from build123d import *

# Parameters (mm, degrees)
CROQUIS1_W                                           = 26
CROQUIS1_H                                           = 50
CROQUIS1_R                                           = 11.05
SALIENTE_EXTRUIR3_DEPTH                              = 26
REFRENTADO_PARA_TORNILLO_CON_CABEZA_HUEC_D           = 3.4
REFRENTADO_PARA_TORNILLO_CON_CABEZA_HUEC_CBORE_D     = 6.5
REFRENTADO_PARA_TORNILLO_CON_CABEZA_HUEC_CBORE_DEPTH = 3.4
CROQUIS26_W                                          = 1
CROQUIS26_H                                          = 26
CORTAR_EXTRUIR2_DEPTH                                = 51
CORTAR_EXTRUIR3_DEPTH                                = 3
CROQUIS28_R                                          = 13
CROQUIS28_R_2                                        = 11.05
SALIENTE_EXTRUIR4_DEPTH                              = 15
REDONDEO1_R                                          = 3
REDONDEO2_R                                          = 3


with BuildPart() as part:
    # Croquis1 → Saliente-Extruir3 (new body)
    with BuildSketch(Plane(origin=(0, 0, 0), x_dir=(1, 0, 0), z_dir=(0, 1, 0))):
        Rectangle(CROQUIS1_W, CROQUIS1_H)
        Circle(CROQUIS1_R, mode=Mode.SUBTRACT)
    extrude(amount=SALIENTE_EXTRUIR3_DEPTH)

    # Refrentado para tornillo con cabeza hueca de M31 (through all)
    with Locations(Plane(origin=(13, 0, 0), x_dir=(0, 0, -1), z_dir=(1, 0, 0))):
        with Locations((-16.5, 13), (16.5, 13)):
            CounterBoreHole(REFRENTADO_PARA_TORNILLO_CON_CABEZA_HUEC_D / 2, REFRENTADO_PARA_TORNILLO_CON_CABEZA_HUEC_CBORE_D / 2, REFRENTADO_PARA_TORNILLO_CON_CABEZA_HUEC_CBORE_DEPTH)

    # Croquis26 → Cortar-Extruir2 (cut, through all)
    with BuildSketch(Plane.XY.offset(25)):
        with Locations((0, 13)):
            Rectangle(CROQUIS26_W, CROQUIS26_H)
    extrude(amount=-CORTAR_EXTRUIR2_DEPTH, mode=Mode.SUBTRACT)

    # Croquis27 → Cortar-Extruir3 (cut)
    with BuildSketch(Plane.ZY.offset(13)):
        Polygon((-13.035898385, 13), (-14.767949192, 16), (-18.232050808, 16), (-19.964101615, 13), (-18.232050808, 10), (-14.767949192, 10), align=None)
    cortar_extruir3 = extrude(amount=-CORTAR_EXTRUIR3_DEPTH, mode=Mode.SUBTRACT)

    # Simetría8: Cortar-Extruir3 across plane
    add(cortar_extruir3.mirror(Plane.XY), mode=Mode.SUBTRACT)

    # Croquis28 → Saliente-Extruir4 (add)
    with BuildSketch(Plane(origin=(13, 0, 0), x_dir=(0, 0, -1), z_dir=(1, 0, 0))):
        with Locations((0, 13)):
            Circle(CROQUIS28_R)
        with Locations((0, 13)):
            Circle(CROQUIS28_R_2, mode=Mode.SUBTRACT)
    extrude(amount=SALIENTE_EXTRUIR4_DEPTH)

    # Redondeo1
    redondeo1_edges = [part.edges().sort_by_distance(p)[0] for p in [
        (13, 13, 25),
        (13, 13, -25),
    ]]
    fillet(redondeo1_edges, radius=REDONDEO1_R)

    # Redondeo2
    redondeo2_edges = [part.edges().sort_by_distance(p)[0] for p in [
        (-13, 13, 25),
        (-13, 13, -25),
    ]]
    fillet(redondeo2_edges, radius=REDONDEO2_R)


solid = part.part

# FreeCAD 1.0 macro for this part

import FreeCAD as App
import Part
import Sketcher

V = App.Vector
Q = App.Units.Quantity


def edges_at(feature, points):
    """Names of the edges that pass closest to the given points."""
    edges = feature.Shape.Edges
    near = lambda p: min(range(len(edges)), key=lambda i: edges[i].distToShape(Part.Vertex(*p))[0])
    return sorted({f"Edge{near(p) + 1}" for p in points})


def add_polygon(sketch, points):
    """Adds a closed chain of lines whose ends are joined by coincident constraints."""
    first, n = sketch.GeometryCount, len(points)
    for a, b in zip(points, points[1:] + points[:1]):
        sketch.addGeometry(Part.LineSegment(App.Vector(*a, 0), App.Vector(*b, 0)), False)
    for i in range(n):
        sketch.addConstraint(Sketcher.Constraint("Coincident", first + i, 2, first + (i + 1) % n, 1))

doc = App.newDocument("Part")
body = doc.addObject("PartDesign::Body", "Body")
body.AllowCompound = True

# Sketch on XZ plane
sketch1 = doc.addObject("Sketcher::SketchObject", "Sketch")
body.addObject(sketch1)
sketch1.AttachmentSupport = (doc.XZ_Plane, [""])
sketch1.MapMode = "FlatFace"
add_polygon(sketch1, [(-13, -25), (-13, 25), (13, 25), (13, -25)])  # lines 0-3
sketch1.addGeometry(Part.Circle(V(0, 0, 0), V(0, 0, 1), 11), False)  # 4
sketch1.addConstraint(Sketcher.Constraint("Vertical", 0))
sketch1.addConstraint(Sketcher.Constraint("Horizontal", 1))
sketch1.addConstraint(Sketcher.Constraint("Vertical", 2))
sketch1.addConstraint(Sketcher.Constraint("Horizontal", 3))
sketch1.addConstraint(Sketcher.Constraint("Coincident", 4, 3, -1, 1))
sketch1.addConstraint(Sketcher.Constraint("Symmetric", 0, 2, 2, 2, -1, 1))
sketch1.addConstraint(Sketcher.Constraint("Diameter", 4, Q("22.1 mm")))
sketch1.addConstraint(Sketcher.Constraint("DistanceX", 1, 1, 1, 2, Q("26 mm")))
sketch1.addConstraint(Sketcher.Constraint("DistanceY", 0, 1, 0, 2, Q("50 mm")))
pad1 = doc.addObject("PartDesign::Pad", "Pad")
body.addObject(pad1)
pad1.Profile = sketch1
pad1.Length = 26
pad1.Reversed = True

# Sketch on YZ plane
sketch2 = doc.addObject("Sketcher::SketchObject", "Sketch001")
body.addObject(sketch2)
sketch2.AttachmentSupport = (doc.YZ_Plane, [""])
sketch2.MapMode = "FlatFace"
sketch2.AttachmentOffset = App.Placement(V(0, 0, 13), App.Rotation())
sketch2.addGeometry(Part.Circle(V(13, 16.5, 0), V(0, 0, 1), 1.7), False)
sketch2.addGeometry(Part.Circle(V(13, -16.5, 0), V(0, 0, 1), 1.7), False)
sketch2.addConstraint(Sketcher.Constraint("Equal", 0, 1))
sketch2.addConstraint(Sketcher.Constraint("Symmetric", 0, 3, 1, 3, -1))
sketch2.addConstraint(Sketcher.Constraint("Diameter", 0, Q("3.4 mm")))
sketch2.addConstraint(Sketcher.Constraint("DistanceX", -1, 1, 0, 3, Q("13 mm")))
sketch2.addConstraint(Sketcher.Constraint("DistanceY", 1, 3, 0, 3, Q("33 mm")))
doc.recompute()
hole = doc.addObject("PartDesign::Hole", "Hole")
body.addObject(hole)
hole.Profile = sketch2
hole.ThreadType = "None"
hole.Diameter = 3.4
hole.DepthType = "ThroughAll"
hole.HoleCutType = "Counterbore"
hole.HoleCutDiameter = 6.5
hole.HoleCutDepth = 3.4

# Sketch on XY plane
sketch3 = doc.addObject("Sketcher::SketchObject", "Sketch002")
body.addObject(sketch3)
sketch3.AttachmentSupport = (doc.XY_Plane, [""])
sketch3.MapMode = "FlatFace"
sketch3.AttachmentOffset = App.Placement(V(0, 0, 25), App.Rotation())
add_polygon(sketch3, [(-0.5, 26), (-0.5, 0), (0.5, 0), (0.5, 26)])  # lines 0-3
sketch3.addConstraint(Sketcher.Constraint("Vertical", 0))
sketch3.addConstraint(Sketcher.Constraint("Horizontal", 1))
sketch3.addConstraint(Sketcher.Constraint("Vertical", 2))
sketch3.addConstraint(Sketcher.Constraint("Horizontal", 3))
sketch3.addConstraint(Sketcher.Constraint("Symmetric", 0, 2, 1, 2, -1, 1))
sketch3.addConstraint(Sketcher.Constraint("DistanceX", 1, 1, 1, 2, Q("1 mm")))
sketch3.addConstraint(Sketcher.Constraint("DistanceY", 0, 2, 0, 1, Q("26 mm")))
pocket1 = doc.addObject("PartDesign::Pocket", "Pocket")
body.addObject(pocket1)
pocket1.Profile = sketch3
pocket1.Type = "ThroughAll"

# Sketch on YZ plane
sketch4 = doc.addObject("Sketcher::SketchObject", "Sketch003")
body.addObject(sketch4)
sketch4.AttachmentSupport = (doc.YZ_Plane, [""])
sketch4.MapMode = "FlatFace"
sketch4.AttachmentOffset = App.Placement(V(0, 0, -13), App.Rotation())
add_polygon(sketch4, [(13, -13), (16, -14.8), (16, -18.2), (13, -20), (10, -18.2), (10, -14.8)])  # lines 0-5
sketch4.addConstraint(Sketcher.Constraint("Vertical", 1))
sketch4.addConstraint(Sketcher.Constraint("Vertical", 4))
sketch4.addConstraint(Sketcher.Constraint("Parallel", 0, 3))
sketch4.addConstraint(Sketcher.Constraint("Parallel", 2, 5))
sketch4.addConstraint(Sketcher.Constraint("Horizontal", 1, 2, 3, 2))
sketch4.addConstraint(Sketcher.Constraint("Horizontal", 0, 2, 4, 2))
sketch4.addConstraint(Sketcher.Constraint("Vertical", 2, 2, 5, 2))
sketch4.addConstraint(Sketcher.Constraint("Angle", 0, Q("-30 deg")))
sketch4.addConstraint(Sketcher.Constraint("DistanceX", -1, 1, 0, 2, Q("16 mm")))
sketch4.addConstraint(Sketcher.Constraint("DistanceX", -1, 1, 2, 2, Q("13 mm")))
sketch4.addConstraint(Sketcher.Constraint("DistanceY", 1, 2, 1, 1, Q("3.464102 mm")))
sketch4.addConstraint(Sketcher.Constraint("DistanceY", 2, 2, -1, 1, Q("19.964102 mm")))
pocket2 = doc.addObject("PartDesign::Pocket", "Pocket001")
body.addObject(pocket2)
pocket2.Profile = sketch4
pocket2.Length = 3
pocket2.Reversed = True
doc.recompute()

mirrored = doc.addObject("PartDesign::Mirrored", "Mirrored")
body.addObject(mirrored)
mirrored.Originals = [pocket2]
mirrored.MirrorPlane = (doc.XY_Plane, [""])
body.Tip = mirrored

# Sketch on YZ plane
sketch5 = doc.addObject("Sketcher::SketchObject", "Sketch004")
body.addObject(sketch5)
sketch5.AttachmentSupport = (doc.YZ_Plane, [""])
sketch5.MapMode = "FlatFace"
sketch5.AttachmentOffset = App.Placement(V(0, 0, 13), App.Rotation())
sketch5.addGeometry(Part.Circle(V(13, 0, 0), V(0, 0, 1), 13), False)
sketch5.addGeometry(Part.Circle(V(13, 0, 0), V(0, 0, 1), 11), False)
sketch5.addConstraint(Sketcher.Constraint("Coincident", 1, 3, 0, 3))
sketch5.addConstraint(Sketcher.Constraint("PointOnObject", 0, 3, -1))
sketch5.addConstraint(Sketcher.Constraint("Diameter", 0, Q("26 mm")))
sketch5.addConstraint(Sketcher.Constraint("Diameter", 1, Q("22.1 mm")))
sketch5.addConstraint(Sketcher.Constraint("DistanceX", -1, 1, 0, 3, Q("13 mm")))
pad2 = doc.addObject("PartDesign::Pad", "Pad001")
body.addObject(pad2)
pad2.Profile = sketch5
pad2.Length = 15
doc.recompute()

fillet = doc.addObject("PartDesign::Fillet", "Fillet")
body.addObject(fillet)
fillet.Base = (pad2, edges_at(pad2, [(13, 13, 25), (13, 13, -25)]))
fillet.Radius = 3
doc.recompute()

fillet2 = doc.addObject("PartDesign::Fillet", "Fillet001")
body.addObject(fillet2)
fillet2.Base = (fillet, edges_at(fillet, [(-13, 13, 25), (-13, 13, -25)]))
fillet2.Radius = 3

doc.recompute()
